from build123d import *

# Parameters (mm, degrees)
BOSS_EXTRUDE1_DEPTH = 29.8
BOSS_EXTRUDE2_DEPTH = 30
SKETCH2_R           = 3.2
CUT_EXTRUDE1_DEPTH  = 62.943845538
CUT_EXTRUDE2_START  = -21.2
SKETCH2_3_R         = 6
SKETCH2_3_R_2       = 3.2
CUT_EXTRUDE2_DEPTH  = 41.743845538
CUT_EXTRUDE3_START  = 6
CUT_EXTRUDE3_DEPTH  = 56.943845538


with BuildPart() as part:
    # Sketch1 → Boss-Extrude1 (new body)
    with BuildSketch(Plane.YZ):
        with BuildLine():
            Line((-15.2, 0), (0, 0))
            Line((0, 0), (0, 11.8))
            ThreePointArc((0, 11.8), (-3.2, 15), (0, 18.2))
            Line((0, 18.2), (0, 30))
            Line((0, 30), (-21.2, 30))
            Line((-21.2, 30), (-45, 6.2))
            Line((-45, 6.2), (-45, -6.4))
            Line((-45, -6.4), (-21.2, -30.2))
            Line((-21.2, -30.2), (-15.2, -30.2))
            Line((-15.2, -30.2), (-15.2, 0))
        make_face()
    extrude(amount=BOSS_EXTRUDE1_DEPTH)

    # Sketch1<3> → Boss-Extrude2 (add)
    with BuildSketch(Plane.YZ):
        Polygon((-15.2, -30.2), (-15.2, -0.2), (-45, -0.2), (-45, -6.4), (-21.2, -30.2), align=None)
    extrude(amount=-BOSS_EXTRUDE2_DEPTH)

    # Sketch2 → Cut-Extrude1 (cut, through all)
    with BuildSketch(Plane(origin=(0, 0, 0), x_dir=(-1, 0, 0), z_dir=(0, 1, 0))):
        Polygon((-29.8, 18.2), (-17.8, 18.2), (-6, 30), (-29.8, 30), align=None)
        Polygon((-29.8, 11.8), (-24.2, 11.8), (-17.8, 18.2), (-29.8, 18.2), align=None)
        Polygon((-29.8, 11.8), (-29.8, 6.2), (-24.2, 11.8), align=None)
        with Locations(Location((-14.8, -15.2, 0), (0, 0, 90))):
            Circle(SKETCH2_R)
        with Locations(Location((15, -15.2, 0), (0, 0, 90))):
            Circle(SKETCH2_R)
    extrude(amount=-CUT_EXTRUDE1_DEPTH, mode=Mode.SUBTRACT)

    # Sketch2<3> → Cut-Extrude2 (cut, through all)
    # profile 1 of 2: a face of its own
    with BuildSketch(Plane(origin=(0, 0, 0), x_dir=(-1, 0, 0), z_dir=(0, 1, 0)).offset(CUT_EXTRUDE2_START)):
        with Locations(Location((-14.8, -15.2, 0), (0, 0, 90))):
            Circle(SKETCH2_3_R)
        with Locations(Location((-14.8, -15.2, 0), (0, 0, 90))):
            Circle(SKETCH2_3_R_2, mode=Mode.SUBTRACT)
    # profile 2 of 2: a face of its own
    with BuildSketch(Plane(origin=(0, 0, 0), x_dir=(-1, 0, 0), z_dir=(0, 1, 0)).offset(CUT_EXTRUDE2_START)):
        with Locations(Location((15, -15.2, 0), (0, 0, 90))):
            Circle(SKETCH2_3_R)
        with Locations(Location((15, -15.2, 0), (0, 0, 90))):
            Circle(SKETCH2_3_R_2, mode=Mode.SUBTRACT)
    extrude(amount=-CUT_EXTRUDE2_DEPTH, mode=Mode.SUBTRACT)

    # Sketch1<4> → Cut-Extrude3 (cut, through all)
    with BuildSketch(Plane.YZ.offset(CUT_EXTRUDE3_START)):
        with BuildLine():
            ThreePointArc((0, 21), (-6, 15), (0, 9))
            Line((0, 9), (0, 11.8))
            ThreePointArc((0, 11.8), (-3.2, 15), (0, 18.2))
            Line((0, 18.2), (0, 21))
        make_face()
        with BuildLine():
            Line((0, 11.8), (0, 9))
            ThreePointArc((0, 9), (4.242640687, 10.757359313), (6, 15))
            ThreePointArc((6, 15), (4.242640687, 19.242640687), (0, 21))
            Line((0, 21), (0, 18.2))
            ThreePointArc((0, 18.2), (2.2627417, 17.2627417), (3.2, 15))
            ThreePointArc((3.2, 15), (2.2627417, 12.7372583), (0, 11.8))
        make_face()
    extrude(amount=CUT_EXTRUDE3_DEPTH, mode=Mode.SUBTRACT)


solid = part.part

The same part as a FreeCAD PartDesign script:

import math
import FreeCAD as App
import Part
import Sketcher
Q = App.Units.Quantity


def add_polygon(sketch, points):
    """Adds a closed chain of lines whose ends are joined by coincident constraints."""
    first, n = sketch.GeometryCount, len(points)
    for a, b in zip(points, points[1:] + points[:1]):
        sketch.addGeometry(Part.LineSegment(App.Vector(*a, 0), App.Vector(*b, 0)), False)
    for i in range(n):
        sketch.addConstraint(Sketcher.Constraint("Coincident", first + i, 2, first + (i + 1) % n, 1))

doc = App.newDocument("Part")
body = doc.addObject("PartDesign::Body", "Body")

sketch1 = doc.addObject("Sketcher::SketchObject", "Sketch")
body.addObject(sketch1)
sketch1.AttachmentSupport = (doc.YZ_Plane, [""])
sketch1.MapMode = "FlatFace"
sketch1.addGeometry([
    Part.LineSegment(App.Vector(-15.2, 0, 0), App.Vector(0, 0, 0)),
    Part.LineSegment(App.Vector(0, 0, 0), App.Vector(0, 11.8, 0)),
    Part.ArcOfCircle(Part.Circle(App.Vector(0, 15, 0), App.Vector(0, 0, 1), 3.2), math.radians(90), math.radians(270)),
    Part.LineSegment(App.Vector(0, 18.2, 0), App.Vector(0, 30, 0)),
    Part.LineSegment(App.Vector(0, 30, 0), App.Vector(-21.2, 30, 0)),
    Part.LineSegment(App.Vector(-21.2, 30, 0), App.Vector(-45, 6.2, 0)),
    Part.LineSegment(App.Vector(-45, 6.2, 0), App.Vector(-45, -6.4, 0)),
    Part.LineSegment(App.Vector(-45, -6.4, 0), App.Vector(-21.2, -30.2, 0)),
    Part.LineSegment(App.Vector(-21.2, -30.2, 0), App.Vector(-15.2, -30.2, 0)),
    Part.LineSegment(App.Vector(-15.2, -30.2, 0), App.Vector(-15.2, 0, 0)),
], False)
sketch1.addConstraint([
    Sketcher.Constraint("Coincident", 0, 2, 1, 1),
    Sketcher.Constraint("Coincident", 1, 2, 2, 2),
    Sketcher.Constraint("Coincident", 2, 1, 3, 1),
    Sketcher.Constraint("Coincident", 3, 2, 4, 1),
    Sketcher.Constraint("Coincident", 4, 2, 5, 1),
    Sketcher.Constraint("Coincident", 5, 2, 6, 1),
    Sketcher.Constraint("Coincident", 6, 2, 7, 1),
    Sketcher.Constraint("Coincident", 7, 2, 8, 1),
    Sketcher.Constraint("Coincident", 8, 2, 9, 1),
    Sketcher.Constraint("Coincident", 9, 2, 0, 1),
    Sketcher.Constraint("Horizontal", 0),
    Sketcher.Constraint("Vertical", 1),
    Sketcher.Constraint("Vertical", 3),
    Sketcher.Constraint("Horizontal", 4),
    Sketcher.Constraint("Vertical", 6),
    Sketcher.Constraint("Horizontal", 8),
    Sketcher.Constraint("Vertical", 9),
    Sketcher.Constraint("Coincident", 0, 2, -1, 1),
    Sketcher.Constraint("PointOnObject", 2, 3, -2),
    Sketcher.Constraint("PointOnObject", 2, 1, -2),
    Sketcher.Constraint("Perpendicular", 5, 7),
    Sketcher.Constraint("Vertical", 4, 2, 7, 2),
    Sketcher.Constraint("Equal", 1, 3),
    Sketcher.Constraint("Equal", 5, 7),
    Sketcher.Constraint("Radius", 2, 3.2),
    Sketcher.Constraint("DistanceX", 8, 1, 8, 2, 6.0),
    Sketcher.Constraint("DistanceX", 0, 1, 0, 2, 15.2),
    Sketcher.Constraint("DistanceY", 1, 1, 1, 2, 11.8),
    Sketcher.Constraint("DistanceY", 6, 2, 6, 1, 12.6),
    Sketcher.Constraint("DistanceY", 9, 1, 9, 2, 30.2),
])
pad1 = doc.addObject("PartDesign::Pad", "Pad")
body.addObject(pad1)
pad1.Profile = sketch1
pad1.Length = 29.8

sketch2 = doc.addObject("Sketcher::SketchObject", "Sketch001")
body.addObject(sketch2)
sketch2.AttachmentSupport = (doc.YZ_Plane, [""])
sketch2.MapMode = "FlatFace"
add_polygon(sketch2, [(-15.2, -30.2), (-15.2, -0.2), (-45, -0.2), (-45, -6.4), (-21.2, -30.2)])
sketch2.addConstraint([
    Sketcher.Constraint("Vertical", 0),
    Sketcher.Constraint("Horizontal", 1),
    Sketcher.Constraint("Vertical", 2),
    Sketcher.Constraint("Horizontal", 4),
    Sketcher.Constraint("DistanceX", 4, 1, 4, 2, 6.0),
    Sketcher.Constraint("DistanceY", 0, 1, 0, 2, 30.0),
    Sketcher.Constraint("Angle", 3, Q("-45 deg")),
    Sketcher.Constraint("DistanceX", 1, 2, 1, 1, 29.8),
    Sketcher.Constraint("DistanceX", 1, 2, -1, 1, 45.0),
    Sketcher.Constraint("DistanceY", 0, 2, -1, 1, 0.2),
])
pad2 = doc.addObject("PartDesign::Pad", "Pad001")
body.addObject(pad2)
pad2.Profile = sketch2
pad2.Length = 30
pad2.Reversed = True

sketch3 = doc.addObject("Sketcher::SketchObject", "Sketch002")
body.addObject(sketch3)
sketch3.AttachmentSupport = (doc.XZ_Plane, [""])
sketch3.MapMode = "FlatFace"
add_polygon(sketch3, [(6, 30), (29.8, 30), (29.8, 6.2)])
sketch3.addGeometry(Part.Circle(App.Vector(14.8, -15.2, 0), App.Vector(0, 0, 1), 3.2), False)
sketch3.addGeometry(Part.Circle(App.Vector(-15, -15.2, 0), App.Vector(0, 0, 1), 3.2), False)
sketch3.addConstraint([
    Sketcher.Constraint("Horizontal", 0),
    Sketcher.Constraint("Vertical", 1),
    Sketcher.Constraint("Equal", 3, 4),
    Sketcher.Constraint("Horizontal", 3, 3, 4, 3),
    Sketcher.Constraint("Equal", 0, 1),
    Sketcher.Constraint("Diameter", 3, 6.4),
    Sketcher.Constraint("DistanceX", 0, 1, 0, 2, 23.8),
    Sketcher.Constraint("DistanceX", 4, 3, -1, 1, 15.0),
    Sketcher.Constraint("DistanceY", -1, 1, 0, 2, 30.0),
    Sketcher.Constraint("DistanceX", -1, 1, 2, 2, 6.0),
    Sketcher.Constraint("DistanceX", 3, 3, 0, 2, 15.0),
    Sketcher.Constraint("DistanceY", 3, 3, -1, 1, 15.2),
])
pocket1 = doc.addObject("PartDesign::Pocket", "Pocket")
body.addObject(pocket1)
pocket1.Profile = sketch3
pocket1.Type = "ThroughAll"
pocket1.Reversed = True

sketch4 = doc.addObject("Sketcher::SketchObject", "Sketch003")
body.addObject(sketch4)
sketch4.AttachmentSupport = (doc.XZ_Plane, [""])
sketch4.MapMode = "FlatFace"
sketch4.AttachmentOffset = App.Placement(App.Vector(0, 0, 21.2), App.Rotation())
sketch4.addGeometry([
    Part.Circle(App.Vector(14.8, -15.2, 0), App.Vector(0, 0, 1), 6),
    Part.Circle(App.Vector(14.8, -15.2, 0), App.Vector(0, 0, 1), 3.2),
    Part.Circle(App.Vector(-15, -15.2, 0), App.Vector(0, 0, 1), 6),
    Part.Circle(App.Vector(-15, -15.2, 0), App.Vector(0, 0, 1), 3.2),
], False)
sketch4.addConstraint([
    Sketcher.Constraint("Coincident", 1, 3, 0, 3),
    Sketcher.Constraint("Coincident", 3, 3, 2, 3),
    Sketcher.Constraint("Equal", 0, 2),
    Sketcher.Constraint("Equal", 1, 3),
    Sketcher.Constraint("Horizontal", 1, 3, 2, 3),
    Sketcher.Constraint("Diameter", 0, 12.0),
    Sketcher.Constraint("Diameter", 1, 6.4),
    Sketcher.Constraint("DistanceX", 2, 3, -1, 1, 15.0),
    Sketcher.Constraint("DistanceX", -1, 1, 0, 3, 14.8),
    Sketcher.Constraint("DistanceY", 0, 3, -1, 1, 15.2),
])
pocket2 = doc.addObject("PartDesign::Pocket", "Pocket001")
body.addObject(pocket2)
pocket2.Profile = sketch4
pocket2.Length = 41.743846
pocket2.Reversed = True

sketch5 = doc.addObject("Sketcher::SketchObject", "Sketch004")
body.addObject(sketch5)
sketch5.AttachmentSupport = (doc.YZ_Plane, [""])
sketch5.MapMode = "FlatFace"
sketch5.AttachmentOffset = App.Placement(App.Vector(0, 0, 6), App.Rotation())
sketch5.addGeometry([
    Part.ArcOfCircle(Part.Circle(App.Vector(0, 15, 0), App.Vector(0, 0, 1), 6), math.radians(90), math.radians(270)),
    Part.ArcOfCircle(Part.Circle(App.Vector(0, 15, 0), App.Vector(0, 0, 1), 6), math.radians(-90), math.radians(0)),
    Part.ArcOfCircle(Part.Circle(App.Vector(0, 15, 0), App.Vector(0, 0, 1), 6), math.radians(0), math.radians(90)),
    Part.ArcOfCircle(Part.Circle(App.Vector(0, 15, 0), App.Vector(0, 0, 1), 3.2), math.radians(90), math.radians(270)),
    Part.ArcOfCircle(Part.Circle(App.Vector(0, 15, 0), App.Vector(0, 0, 1), 3.2), math.radians(0), math.radians(90)),
    Part.ArcOfCircle(Part.Circle(App.Vector(0, 15, 0), App.Vector(0, 0, 1), 3.2), math.radians(-90), math.radians(0)),
], False)
sketch5.addConstraint([
    Sketcher.Constraint("Tangent", 0, 2, 1, 1),
    Sketcher.Constraint("Tangent", 1, 2, 2, 1),
    Sketcher.Constraint("Tangent", 2, 2, 0, 1),
    Sketcher.Constraint("Tangent", 3, 1, 4, 2),
    Sketcher.Constraint("Tangent", 4, 1, 5, 2),
    Sketcher.Constraint("Tangent", 5, 1, 3, 2),
    Sketcher.Constraint("Coincident", 3, 3, 0, 3),
    Sketcher.Constraint("PointOnObject", 0, 3, -2),
    Sketcher.Constraint("PointOnObject", 0, 2, -2),
    Sketcher.Constraint("PointOnObject", 2, 2, -2),
    Sketcher.Constraint("PointOnObject", 3, 1, -2),
    Sketcher.Constraint("PointOnObject", 5, 1, -2),
    Sketcher.Constraint("Horizontal", 5, 3, 1, 2),
    Sketcher.Constraint("Horizontal", 1, 2, 4, 1),
    Sketcher.Constraint("Radius", 0, 6.0),
    Sketcher.Constraint("Radius", 3, 3.2),
    Sketcher.Constraint("DistanceY", -1, 1, 0, 3, 15.0),
])
pocket3 = doc.addObject("PartDesign::Pocket", "Pocket002")
body.addObject(pocket3)
pocket3.Profile = sketch5
pocket3.Type = "ThroughAll"
pocket3.Reversed = True

doc.recompute()
